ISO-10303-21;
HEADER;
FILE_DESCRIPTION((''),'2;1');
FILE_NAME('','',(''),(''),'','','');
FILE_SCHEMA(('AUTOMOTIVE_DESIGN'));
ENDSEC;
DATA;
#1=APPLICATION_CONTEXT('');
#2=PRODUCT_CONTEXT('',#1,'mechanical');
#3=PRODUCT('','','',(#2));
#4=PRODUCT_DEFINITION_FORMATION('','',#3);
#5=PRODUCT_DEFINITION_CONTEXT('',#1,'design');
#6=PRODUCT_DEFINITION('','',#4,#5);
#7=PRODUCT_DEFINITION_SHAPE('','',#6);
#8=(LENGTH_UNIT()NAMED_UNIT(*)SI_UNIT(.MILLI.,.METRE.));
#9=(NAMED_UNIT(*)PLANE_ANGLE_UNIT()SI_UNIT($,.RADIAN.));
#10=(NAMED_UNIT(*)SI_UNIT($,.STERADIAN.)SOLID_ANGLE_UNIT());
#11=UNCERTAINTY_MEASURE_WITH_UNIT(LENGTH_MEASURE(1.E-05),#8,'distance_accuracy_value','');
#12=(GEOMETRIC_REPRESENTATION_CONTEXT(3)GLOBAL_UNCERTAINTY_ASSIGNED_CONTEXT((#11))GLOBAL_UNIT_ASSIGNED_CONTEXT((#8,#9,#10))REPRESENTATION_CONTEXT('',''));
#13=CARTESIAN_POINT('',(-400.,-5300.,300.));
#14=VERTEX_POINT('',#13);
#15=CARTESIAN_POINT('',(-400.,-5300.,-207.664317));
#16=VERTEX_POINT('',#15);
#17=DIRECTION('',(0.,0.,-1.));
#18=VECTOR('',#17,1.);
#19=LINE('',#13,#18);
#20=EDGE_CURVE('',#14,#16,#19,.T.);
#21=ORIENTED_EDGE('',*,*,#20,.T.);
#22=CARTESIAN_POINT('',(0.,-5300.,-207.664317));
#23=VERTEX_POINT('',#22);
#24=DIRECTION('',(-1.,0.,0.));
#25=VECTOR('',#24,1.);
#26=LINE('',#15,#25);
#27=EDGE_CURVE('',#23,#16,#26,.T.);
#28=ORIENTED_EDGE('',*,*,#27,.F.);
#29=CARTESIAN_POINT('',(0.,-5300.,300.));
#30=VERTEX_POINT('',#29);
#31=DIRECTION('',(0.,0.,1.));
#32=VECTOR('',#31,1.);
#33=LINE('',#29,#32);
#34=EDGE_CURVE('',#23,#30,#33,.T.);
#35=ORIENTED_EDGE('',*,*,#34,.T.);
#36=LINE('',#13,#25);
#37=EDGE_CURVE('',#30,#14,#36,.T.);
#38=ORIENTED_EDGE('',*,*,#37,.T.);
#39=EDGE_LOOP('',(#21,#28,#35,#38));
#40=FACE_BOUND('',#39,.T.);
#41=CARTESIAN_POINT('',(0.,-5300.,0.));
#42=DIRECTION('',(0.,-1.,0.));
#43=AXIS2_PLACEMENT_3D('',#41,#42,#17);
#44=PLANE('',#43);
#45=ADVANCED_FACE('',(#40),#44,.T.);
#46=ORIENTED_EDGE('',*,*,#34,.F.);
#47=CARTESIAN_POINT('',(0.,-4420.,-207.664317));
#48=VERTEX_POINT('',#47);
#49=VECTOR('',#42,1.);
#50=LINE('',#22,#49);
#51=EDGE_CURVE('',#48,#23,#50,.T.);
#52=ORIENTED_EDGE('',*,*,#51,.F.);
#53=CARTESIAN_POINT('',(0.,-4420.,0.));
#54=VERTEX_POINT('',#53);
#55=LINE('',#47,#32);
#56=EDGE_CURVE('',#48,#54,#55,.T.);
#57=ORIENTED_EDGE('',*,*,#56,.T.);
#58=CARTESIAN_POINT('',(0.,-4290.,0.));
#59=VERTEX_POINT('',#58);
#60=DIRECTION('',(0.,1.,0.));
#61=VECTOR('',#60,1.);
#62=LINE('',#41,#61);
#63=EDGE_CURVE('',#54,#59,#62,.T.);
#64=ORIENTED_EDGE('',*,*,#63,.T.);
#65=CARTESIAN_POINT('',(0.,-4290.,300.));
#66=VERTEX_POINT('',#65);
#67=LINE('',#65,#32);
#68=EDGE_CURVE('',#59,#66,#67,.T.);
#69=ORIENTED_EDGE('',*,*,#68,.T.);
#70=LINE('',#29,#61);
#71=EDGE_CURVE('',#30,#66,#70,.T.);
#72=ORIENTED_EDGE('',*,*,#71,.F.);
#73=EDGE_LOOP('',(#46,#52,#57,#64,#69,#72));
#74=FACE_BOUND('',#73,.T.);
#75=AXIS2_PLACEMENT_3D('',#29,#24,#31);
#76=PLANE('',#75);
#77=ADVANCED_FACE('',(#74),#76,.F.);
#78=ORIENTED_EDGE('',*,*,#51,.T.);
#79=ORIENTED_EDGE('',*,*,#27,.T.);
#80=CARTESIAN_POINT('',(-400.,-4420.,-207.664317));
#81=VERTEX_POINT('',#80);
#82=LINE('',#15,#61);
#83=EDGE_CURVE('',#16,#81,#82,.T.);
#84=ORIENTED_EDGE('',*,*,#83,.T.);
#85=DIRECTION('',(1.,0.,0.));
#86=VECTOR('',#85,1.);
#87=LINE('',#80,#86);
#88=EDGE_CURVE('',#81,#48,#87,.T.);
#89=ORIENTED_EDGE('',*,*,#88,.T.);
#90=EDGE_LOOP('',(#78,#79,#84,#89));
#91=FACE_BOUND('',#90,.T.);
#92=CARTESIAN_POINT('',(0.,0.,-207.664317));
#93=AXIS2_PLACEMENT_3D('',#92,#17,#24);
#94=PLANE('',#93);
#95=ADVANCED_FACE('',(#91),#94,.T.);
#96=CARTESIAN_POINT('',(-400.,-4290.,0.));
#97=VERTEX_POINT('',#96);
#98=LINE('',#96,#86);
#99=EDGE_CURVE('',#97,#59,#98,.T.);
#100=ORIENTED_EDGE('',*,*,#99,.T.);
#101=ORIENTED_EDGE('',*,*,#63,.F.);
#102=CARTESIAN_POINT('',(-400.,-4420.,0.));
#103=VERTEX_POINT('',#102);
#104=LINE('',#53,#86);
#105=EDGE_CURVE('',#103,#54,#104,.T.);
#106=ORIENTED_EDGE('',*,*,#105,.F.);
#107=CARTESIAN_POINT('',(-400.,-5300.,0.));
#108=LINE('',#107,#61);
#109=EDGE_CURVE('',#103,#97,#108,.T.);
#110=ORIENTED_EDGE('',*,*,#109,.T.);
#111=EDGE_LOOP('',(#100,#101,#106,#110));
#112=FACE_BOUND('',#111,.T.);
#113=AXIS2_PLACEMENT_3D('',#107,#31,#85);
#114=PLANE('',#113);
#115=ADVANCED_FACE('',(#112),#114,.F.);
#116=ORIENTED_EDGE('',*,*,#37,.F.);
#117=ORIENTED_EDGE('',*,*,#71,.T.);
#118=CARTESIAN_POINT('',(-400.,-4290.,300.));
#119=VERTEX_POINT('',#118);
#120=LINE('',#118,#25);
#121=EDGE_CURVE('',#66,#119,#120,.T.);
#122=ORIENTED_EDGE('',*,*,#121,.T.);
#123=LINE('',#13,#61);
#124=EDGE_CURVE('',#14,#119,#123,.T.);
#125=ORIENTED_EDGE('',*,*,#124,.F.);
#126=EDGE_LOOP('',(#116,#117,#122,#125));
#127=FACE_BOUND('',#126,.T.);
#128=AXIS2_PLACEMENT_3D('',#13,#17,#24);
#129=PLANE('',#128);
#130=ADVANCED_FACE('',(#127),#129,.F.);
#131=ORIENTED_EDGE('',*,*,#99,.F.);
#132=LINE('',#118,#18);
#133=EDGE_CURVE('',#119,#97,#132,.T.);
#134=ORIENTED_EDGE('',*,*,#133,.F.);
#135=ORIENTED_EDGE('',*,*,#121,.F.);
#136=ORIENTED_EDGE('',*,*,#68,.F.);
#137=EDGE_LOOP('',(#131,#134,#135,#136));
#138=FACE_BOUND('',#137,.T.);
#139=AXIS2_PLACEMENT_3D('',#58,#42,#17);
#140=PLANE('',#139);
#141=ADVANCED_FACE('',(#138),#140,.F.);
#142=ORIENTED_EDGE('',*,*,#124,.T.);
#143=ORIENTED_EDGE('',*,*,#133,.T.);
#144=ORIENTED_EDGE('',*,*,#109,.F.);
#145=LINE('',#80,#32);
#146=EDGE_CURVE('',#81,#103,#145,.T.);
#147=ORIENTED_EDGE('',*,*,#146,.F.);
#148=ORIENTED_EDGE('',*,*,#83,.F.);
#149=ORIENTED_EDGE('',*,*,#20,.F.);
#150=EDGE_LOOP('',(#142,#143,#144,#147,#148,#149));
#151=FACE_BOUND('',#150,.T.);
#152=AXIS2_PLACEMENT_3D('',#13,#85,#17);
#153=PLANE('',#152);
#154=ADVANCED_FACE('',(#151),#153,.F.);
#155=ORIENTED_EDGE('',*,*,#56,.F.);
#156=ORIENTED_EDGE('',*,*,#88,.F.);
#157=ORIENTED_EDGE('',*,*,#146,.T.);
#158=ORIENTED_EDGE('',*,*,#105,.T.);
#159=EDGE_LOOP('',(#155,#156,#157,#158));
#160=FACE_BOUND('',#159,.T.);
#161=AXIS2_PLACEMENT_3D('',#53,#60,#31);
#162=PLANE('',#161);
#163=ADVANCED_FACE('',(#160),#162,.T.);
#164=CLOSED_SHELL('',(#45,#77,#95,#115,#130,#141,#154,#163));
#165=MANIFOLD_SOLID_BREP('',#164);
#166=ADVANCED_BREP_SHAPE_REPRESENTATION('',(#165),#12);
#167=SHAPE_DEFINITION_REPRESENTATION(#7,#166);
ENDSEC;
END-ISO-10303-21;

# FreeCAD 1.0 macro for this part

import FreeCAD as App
import Part
import Sketcher
Q = App.Units.Quantity

doc = App.newDocument("Part")
body = doc.addObject("PartDesign::Body", "Body")

sketch1 = body.newObject("Sketcher::SketchObject", "Sketch")
sketch1.AttachmentSupport = (doc.getObject("XZ_Plane"), [""])
sketch1.MapMode = "FlatFace"
sketch1.AttachmentOffset = App.Placement(App.Vector(0, 0, 4290), App.Rotation())
sketch1.addGeometry(Part.LineSegment(App.Vector(-400, 300, 0), App.Vector(-400, 0, 0)), False)
sketch1.addGeometry(Part.LineSegment(App.Vector(-400, 0, 0), App.Vector(0, 0, 0)), False)
sketch1.addGeometry(Part.LineSegment(App.Vector(0, 0, 0), App.Vector(0, 300, 0)), False)
sketch1.addGeometry(Part.LineSegment(App.Vector(0, 300, 0), App.Vector(-400, 300, 0)), False)
sketch1.addConstraint(Sketcher.Constraint("Coincident", 0, 2, 1, 1))
sketch1.addConstraint(Sketcher.Constraint("Coincident", 1, 2, 2, 1))
sketch1.addConstraint(Sketcher.Constraint("Coincident", 2, 2, 3, 1))
sketch1.addConstraint(Sketcher.Constraint("Coincident", 3, 2, 0, 1))
sketch1.addConstraint(Sketcher.Constraint("Vertical", 0))
sketch1.addConstraint(Sketcher.Constraint("Horizontal", 1))
sketch1.addConstraint(Sketcher.Constraint("Vertical", 2))
sketch1.addConstraint(Sketcher.Constraint("Horizontal", 3))
sketch1.addConstraint(Sketcher.Constraint("Coincident", 1, 2, -1, 1))
sketch1.addConstraint(Sketcher.Constraint("DistanceX", 1, 1, 1, 2, Q("400 mm")))
sketch1.addConstraint(Sketcher.Constraint("DistanceY", 0, 2, 0, 1, Q("300 mm")))
pad1 = body.newObject("PartDesign::Pad", "Pad")
pad1.Profile = sketch1
pad1.Length = 1010

sketch2 = body.newObject("Sketcher::SketchObject", "Sketch001")
sketch2.AttachmentSupport = (doc.getObject("XY_Plane"), [""])
sketch2.MapMode = "FlatFace"
sketch2.AttachmentOffset = App.Placement(App.Vector(0, 0, -207.664317), App.Rotation())
sketch2.addGeometry(Part.LineSegment(App.Vector(0, -5300, 0), App.Vector(-400, -5300, 0)), False)
sketch2.addGeometry(Part.LineSegment(App.Vector(-400, -5300, 0), App.Vector(-400, -4420, 0)), False)
sketch2.addGeometry(Part.LineSegment(App.Vector(-400, -4420, 0), App.Vector(0, -4420, 0)), False)
sketch2.addGeometry(Part.LineSegment(App.Vector(0, -4420, 0), App.Vector(0, -5300, 0)), False)
sketch2.addConstraint(Sketcher.Constraint("Coincident", 0, 2, 1, 1))
sketch2.addConstraint(Sketcher.Constraint("Coincident", 1, 2, 2, 1))
sketch2.addConstraint(Sketcher.Constraint("Coincident", 2, 2, 3, 1))
sketch2.addConstraint(Sketcher.Constraint("Coincident", 3, 2, 0, 1))
sketch2.addConstraint(Sketcher.Constraint("Horizontal", 0))
sketch2.addConstraint(Sketcher.Constraint("Vertical", 1))
sketch2.addConstraint(Sketcher.Constraint("Horizontal", 2))
sketch2.addConstraint(Sketcher.Constraint("Vertical", 3))
sketch2.addConstraint(Sketcher.Constraint("PointOnObject", 2, 2, -2))
sketch2.addConstraint(Sketcher.Constraint("DistanceX", 0, 2, 0, 1, Q("400 mm")))
sketch2.addConstraint(Sketcher.Constraint("DistanceY", 1, 1, 1, 2, Q("880 mm")))
sketch2.addConstraint(Sketcher.Constraint("DistanceY", 0, 2, -1, 1, Q("5300 mm")))

sketch3 = body.newObject("Sketcher::SketchObject", "Sketch002")
sketch3.AttachmentSupport = (doc.getObject("XY_Plane"), [""])
sketch3.MapMode = "FlatFace"
sketch3.addGeometry(Part.LineSegment(App.Vector(0, -5300, 0), App.Vector(-400, -5300, 0)), False)
sketch3.addGeometry(Part.LineSegment(App.Vector(-400, -5300, 0), App.Vector(-400, -4420, 0)), False)
sketch3.addGeometry(Part.LineSegment(App.Vector(-400, -4420, 0), App.Vector(0, -4420, 0)), False)
sketch3.addGeometry(Part.LineSegment(App.Vector(0, -4420, 0), App.Vector(0, -5300, 0)), False)
sketch3.addConstraint(Sketcher.Constraint("Coincident", 0, 2, 1, 1))
sketch3.addConstraint(Sketcher.Constraint("Coincident", 1, 2, 2, 1))
sketch3.addConstraint(Sketcher.Constraint("Coincident", 2, 2, 3, 1))
sketch3.addConstraint(Sketcher.Constraint("Coincident", 3, 2, 0, 1))
sketch3.addConstraint(Sketcher.Constraint("Horizontal", 0))
sketch3.addConstraint(Sketcher.Constraint("Vertical", 1))
sketch3.addConstraint(Sketcher.Constraint("Horizontal", 2))
sketch3.addConstraint(Sketcher.Constraint("Vertical", 3))
sketch3.addConstraint(Sketcher.Constraint("PointOnObject", 2, 2, -2))
sketch3.addConstraint(Sketcher.Constraint("DistanceX", 0, 2, 0, 1, Q("400 mm")))
sketch3.addConstraint(Sketcher.Constraint("DistanceY", 1, 1, 1, 2, Q("880 mm")))
sketch3.addConstraint(Sketcher.Constraint("DistanceY", 0, 2, -1, 1, Q("5300 mm")))

additiveloft = body.newObject("PartDesign::AdditiveLoft", "AdditiveLoft")
additiveloft.Profile = sketch2
additiveloft.Sections = [sketch3]

doc.recompute()
